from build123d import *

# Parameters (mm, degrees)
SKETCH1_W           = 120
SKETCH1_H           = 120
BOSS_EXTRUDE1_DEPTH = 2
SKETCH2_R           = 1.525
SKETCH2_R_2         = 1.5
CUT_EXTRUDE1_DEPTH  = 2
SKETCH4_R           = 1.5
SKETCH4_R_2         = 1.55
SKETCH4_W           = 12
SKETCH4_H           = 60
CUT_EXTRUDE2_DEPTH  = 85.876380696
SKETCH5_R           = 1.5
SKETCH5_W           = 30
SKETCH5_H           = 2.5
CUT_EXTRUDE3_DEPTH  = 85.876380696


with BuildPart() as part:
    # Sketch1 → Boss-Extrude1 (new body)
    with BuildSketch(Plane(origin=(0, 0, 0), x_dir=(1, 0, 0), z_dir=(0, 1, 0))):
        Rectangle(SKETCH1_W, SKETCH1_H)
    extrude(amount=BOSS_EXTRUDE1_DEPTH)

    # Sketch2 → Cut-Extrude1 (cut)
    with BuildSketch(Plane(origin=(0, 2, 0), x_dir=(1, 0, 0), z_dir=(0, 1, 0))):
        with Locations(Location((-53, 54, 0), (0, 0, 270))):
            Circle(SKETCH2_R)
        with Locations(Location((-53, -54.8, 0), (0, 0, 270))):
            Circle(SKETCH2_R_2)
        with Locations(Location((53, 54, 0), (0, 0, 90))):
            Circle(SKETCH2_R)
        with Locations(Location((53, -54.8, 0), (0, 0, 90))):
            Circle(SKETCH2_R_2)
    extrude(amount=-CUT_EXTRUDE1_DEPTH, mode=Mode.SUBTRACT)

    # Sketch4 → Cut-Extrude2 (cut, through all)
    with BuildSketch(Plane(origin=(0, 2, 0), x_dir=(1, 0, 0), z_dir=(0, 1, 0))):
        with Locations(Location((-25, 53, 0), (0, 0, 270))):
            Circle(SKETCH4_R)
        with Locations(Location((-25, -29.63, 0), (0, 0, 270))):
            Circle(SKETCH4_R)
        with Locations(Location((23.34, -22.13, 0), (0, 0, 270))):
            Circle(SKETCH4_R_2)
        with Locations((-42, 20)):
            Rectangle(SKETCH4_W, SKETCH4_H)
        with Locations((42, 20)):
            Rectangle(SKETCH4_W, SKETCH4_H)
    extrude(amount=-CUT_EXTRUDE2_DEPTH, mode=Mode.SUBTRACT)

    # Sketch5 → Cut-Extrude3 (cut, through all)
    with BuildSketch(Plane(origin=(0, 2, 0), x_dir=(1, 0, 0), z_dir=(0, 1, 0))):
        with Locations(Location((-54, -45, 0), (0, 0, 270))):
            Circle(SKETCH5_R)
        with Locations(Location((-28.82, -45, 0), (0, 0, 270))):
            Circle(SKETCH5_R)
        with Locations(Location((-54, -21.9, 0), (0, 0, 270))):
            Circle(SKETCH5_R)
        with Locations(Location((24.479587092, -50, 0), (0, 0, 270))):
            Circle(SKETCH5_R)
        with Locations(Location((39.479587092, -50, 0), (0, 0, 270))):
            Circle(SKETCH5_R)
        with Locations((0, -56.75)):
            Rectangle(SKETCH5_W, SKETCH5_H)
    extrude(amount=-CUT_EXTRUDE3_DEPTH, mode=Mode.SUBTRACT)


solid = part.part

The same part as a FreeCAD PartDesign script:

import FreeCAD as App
import Part
import Sketcher

V = App.Vector
Q = App.Units.Quantity

doc = App.newDocument("Part")
body = doc.addObject("PartDesign::Body", "Body")

sketch1 = body.newObject("Sketcher::SketchObject", "Sketch")
sketch1.AttachmentSupport = (doc.getObject("XZ_Plane"), [""])
sketch1.MapMode = "FlatFace"
sketch1.addGeometry([
    Part.LineSegment(V(-60, -60, 0), V(-60, 60, 0)),
    Part.LineSegment(V(-60, 60, 0), V(60, 60, 0)),
    Part.LineSegment(V(60, 60, 0), V(60, -60, 0)),
    Part.LineSegment(V(60, -60, 0), V(-60, -60, 0)),
], False)
sketch1.addConstraint([
    Sketcher.Constraint("Coincident", 0, 2, 1, 1),
    Sketcher.Constraint("Coincident", 1, 2, 2, 1),
    Sketcher.Constraint("Coincident", 2, 2, 3, 1),
    Sketcher.Constraint("Coincident", 3, 2, 0, 1),
    Sketcher.Constraint("Vertical", 0),
    Sketcher.Constraint("Horizontal", 1),
    Sketcher.Constraint("Vertical", 2),
    Sketcher.Constraint("Horizontal", 3),
    Sketcher.Constraint("Symmetric", 0, 2, 2, 2, -1, 1),
    Sketcher.Constraint("Equal", 3, 0),
    Sketcher.Constraint("DistanceX", 1, 1, 1, 2, Q("120 mm")),
])
pad1 = body.newObject("PartDesign::Pad", "Pad")
pad1.Profile = sketch1
pad1.Length = 2
pad1.Reversed = True

sketch2 = body.newObject("Sketcher::SketchObject", "Sketch001")
sketch2.AttachmentSupport = (doc.getObject("XZ_Plane"), [""])
sketch2.MapMode = "FlatFace"
sketch2.AttachmentOffset = App.Placement(V(0, 0, -2), App.Rotation())
sketch2.addGeometry([
    Part.Circle(V(-53, -54, 0), V(0, 0, 1), 1.5),
    Part.Circle(V(-53, 54.8, 0), V(0, 0, 1), 1.5),
    Part.Circle(V(53, -54, 0), V(0, 0, 1), 1.5),
    Part.Circle(V(53, 54.8, 0), V(0, 0, 1), 1.5),
], False)
sketch2.addConstraint([
    Sketcher.Constraint("Equal", 0, 2),
    Sketcher.Constraint("Equal", 1, 3),
    Sketcher.Constraint("Symmetric", 0, 3, 2, 3, -2),
    Sketcher.Constraint("Symmetric", 1, 3, 3, 3, -2),
    Sketcher.Constraint("Vertical", 0, 3, 1, 3),
    Sketcher.Constraint("Diameter", 1, Q("3 mm")),
    Sketcher.Constraint("Diameter", 0, Q("3.05 mm")),
    Sketcher.Constraint("DistanceX", 0, 3, -1, 1, Q("53 mm")),
    Sketcher.Constraint("DistanceY", 0, 3, -1, 1, Q("54 mm")),
    Sketcher.Constraint("DistanceY", -1, 1, 1, 3, Q("54.8 mm")),
])
pocket1 = body.newObject("PartDesign::Pocket", "Pocket")
pocket1.Profile = sketch2
pocket1.Length = 2
pocket1.Reversed = True

sketch3 = body.newObject("Sketcher::SketchObject", "Sketch002")
sketch3.AttachmentSupport = (doc.getObject("XZ_Plane"), [""])
sketch3.MapMode = "FlatFace"
sketch3.AttachmentOffset = App.Placement(V(0, 0, -2), App.Rotation())
sketch3.addGeometry([
    Part.Circle(V(-25, -53, 0), V(0, 0, 1), 1.5),
    Part.Circle(V(-25, 29.6, 0), V(0, 0, 1), 1.5),
    Part.Circle(V(23.3, 22.1, 0), V(0, 0, 1), 1.6),
    Part.LineSegment(V(-48, -50, 0), V(-48, 10, 0)),
    Part.LineSegment(V(-48, 10, 0), V(-36, 10, 0)),
    Part.LineSegment(V(-36, 10, 0), V(-36, -50, 0)),
    Part.LineSegment(V(-36, -50, 0), V(-48, -50, 0)),
    Part.LineSegment(V(36, -50, 0), V(36, 10, 0)),
    Part.LineSegment(V(36, 10, 0), V(48, 10, 0)),
    Part.LineSegment(V(48, 10, 0), V(48, -50, 0)),
    Part.LineSegment(V(48, -50, 0), V(36, -50, 0)),
], False)
sketch3.addConstraint([
    Sketcher.Constraint("Coincident", 3, 2, 4, 1),
    Sketcher.Constraint("Coincident", 4, 2, 5, 1),
    Sketcher.Constraint("Coincident", 5, 2, 6, 1),
    Sketcher.Constraint("Coincident", 6, 2, 3, 1),
    Sketcher.Constraint("Coincident", 7, 2, 8, 1),
    Sketcher.Constraint("Coincident", 8, 2, 9, 1),
    Sketcher.Constraint("Coincident", 9, 2, 10, 1),
    Sketcher.Constraint("Coincident", 10, 2, 7, 1),
    Sketcher.Constraint("Vertical", 3),
    Sketcher.Constraint("Horizontal", 4),
    Sketcher.Constraint("Vertical", 5),
    Sketcher.Constraint("Horizontal", 6),
    Sketcher.Constraint("Vertical", 7),
    Sketcher.Constraint("Horizontal", 8),
    Sketcher.Constraint("Vertical", 9),
    Sketcher.Constraint("Horizontal", 10),
    Sketcher.Constraint("Equal", 0, 1),
    Sketcher.Constraint("Symmetric", 4, 2, 7, 2, -2),
    Sketcher.Constraint("Symmetric", 6, 2, 9, 2, -2),
    Sketcher.Constraint("Vertical", 0, 3, 1, 3),
    Sketcher.Constraint("Diameter", 0, Q("3 mm")),
    Sketcher.Constraint("Diameter", 2, Q("3.1 mm")),
    Sketcher.Constraint("DistanceX", 4, 1, 4, 2, Q("12 mm")),
    Sketcher.Constraint("DistanceY", 3, 1, 3, 2, Q("60 mm")),
    Sketcher.Constraint("DistanceX", 0, 3, -1, 1, Q("25 mm")),
    Sketcher.Constraint("DistanceY", 0, 3, -1, 1, Q("53 mm")),
    Sketcher.Constraint("DistanceX", 3, 2, -1, 1, Q("48 mm")),
    Sketcher.Constraint("DistanceY", -1, 1, 3, 2, Q("10 mm")),
    Sketcher.Constraint("DistanceY", 2, 3, 1, 3, Q("7.5 mm")),
    Sketcher.Constraint("DistanceY", -1, 1, 1, 3, Q("29.63 mm")),
    Sketcher.Constraint("DistanceX", -1, 1, 2, 3, Q("23.34 mm")),
])
pocket2 = body.newObject("PartDesign::Pocket", "Pocket001")
pocket2.Profile = sketch3
pocket2.Type = "ThroughAll"
pocket2.Reversed = True

sketch4 = body.newObject("Sketcher::SketchObject", "Sketch003")
sketch4.AttachmentSupport = (doc.getObject("XZ_Plane"), [""])
sketch4.MapMode = "FlatFace"
sketch4.AttachmentOffset = App.Placement(V(0, 0, -2), App.Rotation())
sketch4.addGeometry([
    Part.Circle(V(-54, 45, 0), V(0, 0, 1), 1.5),
    Part.Circle(V(-28.8, 45, 0), V(0, 0, 1), 1.5),
    Part.Circle(V(-54, 21.9, 0), V(0, 0, 1), 1.5),
    Part.Circle(V(24.5, 50, 0), V(0, 0, 1), 1.5),
    Part.Circle(V(39.5, 50, 0), V(0, 0, 1), 1.5),
    Part.LineSegment(V(-15, 55.5, 0), V(-15, 58, 0)),
    Part.LineSegment(V(-15, 58, 0), V(15, 58, 0)),
    Part.LineSegment(V(15, 58, 0), V(15, 55.5, 0)),
    Part.LineSegment(V(15, 55.5, 0), V(-15, 55.5, 0)),
], False)
sketch4.addConstraint([
    Sketcher.Constraint("Coincident", 5, 2, 6, 1),
    Sketcher.Constraint("Coincident", 6, 2, 7, 1),
    Sketcher.Constraint("Coincident", 7, 2, 8, 1),
    Sketcher.Constraint("Coincident", 8, 2, 5, 1),
    Sketcher.Constraint("Vertical", 5),
    Sketcher.Constraint("Horizontal", 6),
    Sketcher.Constraint("Vertical", 7),
    Sketcher.Constraint("Horizontal", 8),
    Sketcher.Constraint("Equal", 0, 1),
    Sketcher.Constraint("Equal", 1, 2),
    Sketcher.Constraint("Equal", 2, 3),
    Sketcher.Constraint("Equal", 3, 4),
    Sketcher.Constraint("Horizontal", 0, 3, 1, 3),
    Sketcher.Constraint("Horizontal", 3, 3, 4, 3),
    Sketcher.Constraint("Vertical", 0, 3, 2, 3),
    Sketcher.Constraint("Diameter", 0, Q("3 mm")),
    Sketcher.Constraint("DistanceX", 6, 1, 6, 2, Q("30 mm")),
    Sketcher.Constraint("DistanceY", 5, 1, 5, 2, Q("2.5 mm")),
    Sketcher.Constraint("DistanceX", 0, 3, -1, 1, Q("54 mm")),
    Sketcher.Constraint("DistanceY", -1, 1, 0, 3, Q("45 mm")),
    Sketcher.Constraint("DistanceY", -1, 1, 3, 3, Q("50 mm")),
    Sketcher.Constraint("DistanceX", 5, 2, -1, 1, Q("15 mm")),
    Sketcher.Constraint("DistanceY", -1, 1, 5, 2, Q("58 mm")),
    Sketcher.Constraint("DistanceX", 3, 3, 4, 3, Q("15 mm")),
    Sketcher.Constraint("DistanceY", -1, 1, 2, 3, Q("21.9 mm")),
    Sketcher.Constraint("DistanceX", 1, 3, -1, 1, Q("28.82 mm")),
    Sketcher.Constraint("DistanceX", -1, 1, 3, 3, Q("24.479587 mm")),
])
pocket3 = body.newObject("PartDesign::Pocket", "Pocket002")
pocket3.Profile = sketch4
pocket3.Type = "ThroughAll"
pocket3.Reversed = True

doc.recompute()
